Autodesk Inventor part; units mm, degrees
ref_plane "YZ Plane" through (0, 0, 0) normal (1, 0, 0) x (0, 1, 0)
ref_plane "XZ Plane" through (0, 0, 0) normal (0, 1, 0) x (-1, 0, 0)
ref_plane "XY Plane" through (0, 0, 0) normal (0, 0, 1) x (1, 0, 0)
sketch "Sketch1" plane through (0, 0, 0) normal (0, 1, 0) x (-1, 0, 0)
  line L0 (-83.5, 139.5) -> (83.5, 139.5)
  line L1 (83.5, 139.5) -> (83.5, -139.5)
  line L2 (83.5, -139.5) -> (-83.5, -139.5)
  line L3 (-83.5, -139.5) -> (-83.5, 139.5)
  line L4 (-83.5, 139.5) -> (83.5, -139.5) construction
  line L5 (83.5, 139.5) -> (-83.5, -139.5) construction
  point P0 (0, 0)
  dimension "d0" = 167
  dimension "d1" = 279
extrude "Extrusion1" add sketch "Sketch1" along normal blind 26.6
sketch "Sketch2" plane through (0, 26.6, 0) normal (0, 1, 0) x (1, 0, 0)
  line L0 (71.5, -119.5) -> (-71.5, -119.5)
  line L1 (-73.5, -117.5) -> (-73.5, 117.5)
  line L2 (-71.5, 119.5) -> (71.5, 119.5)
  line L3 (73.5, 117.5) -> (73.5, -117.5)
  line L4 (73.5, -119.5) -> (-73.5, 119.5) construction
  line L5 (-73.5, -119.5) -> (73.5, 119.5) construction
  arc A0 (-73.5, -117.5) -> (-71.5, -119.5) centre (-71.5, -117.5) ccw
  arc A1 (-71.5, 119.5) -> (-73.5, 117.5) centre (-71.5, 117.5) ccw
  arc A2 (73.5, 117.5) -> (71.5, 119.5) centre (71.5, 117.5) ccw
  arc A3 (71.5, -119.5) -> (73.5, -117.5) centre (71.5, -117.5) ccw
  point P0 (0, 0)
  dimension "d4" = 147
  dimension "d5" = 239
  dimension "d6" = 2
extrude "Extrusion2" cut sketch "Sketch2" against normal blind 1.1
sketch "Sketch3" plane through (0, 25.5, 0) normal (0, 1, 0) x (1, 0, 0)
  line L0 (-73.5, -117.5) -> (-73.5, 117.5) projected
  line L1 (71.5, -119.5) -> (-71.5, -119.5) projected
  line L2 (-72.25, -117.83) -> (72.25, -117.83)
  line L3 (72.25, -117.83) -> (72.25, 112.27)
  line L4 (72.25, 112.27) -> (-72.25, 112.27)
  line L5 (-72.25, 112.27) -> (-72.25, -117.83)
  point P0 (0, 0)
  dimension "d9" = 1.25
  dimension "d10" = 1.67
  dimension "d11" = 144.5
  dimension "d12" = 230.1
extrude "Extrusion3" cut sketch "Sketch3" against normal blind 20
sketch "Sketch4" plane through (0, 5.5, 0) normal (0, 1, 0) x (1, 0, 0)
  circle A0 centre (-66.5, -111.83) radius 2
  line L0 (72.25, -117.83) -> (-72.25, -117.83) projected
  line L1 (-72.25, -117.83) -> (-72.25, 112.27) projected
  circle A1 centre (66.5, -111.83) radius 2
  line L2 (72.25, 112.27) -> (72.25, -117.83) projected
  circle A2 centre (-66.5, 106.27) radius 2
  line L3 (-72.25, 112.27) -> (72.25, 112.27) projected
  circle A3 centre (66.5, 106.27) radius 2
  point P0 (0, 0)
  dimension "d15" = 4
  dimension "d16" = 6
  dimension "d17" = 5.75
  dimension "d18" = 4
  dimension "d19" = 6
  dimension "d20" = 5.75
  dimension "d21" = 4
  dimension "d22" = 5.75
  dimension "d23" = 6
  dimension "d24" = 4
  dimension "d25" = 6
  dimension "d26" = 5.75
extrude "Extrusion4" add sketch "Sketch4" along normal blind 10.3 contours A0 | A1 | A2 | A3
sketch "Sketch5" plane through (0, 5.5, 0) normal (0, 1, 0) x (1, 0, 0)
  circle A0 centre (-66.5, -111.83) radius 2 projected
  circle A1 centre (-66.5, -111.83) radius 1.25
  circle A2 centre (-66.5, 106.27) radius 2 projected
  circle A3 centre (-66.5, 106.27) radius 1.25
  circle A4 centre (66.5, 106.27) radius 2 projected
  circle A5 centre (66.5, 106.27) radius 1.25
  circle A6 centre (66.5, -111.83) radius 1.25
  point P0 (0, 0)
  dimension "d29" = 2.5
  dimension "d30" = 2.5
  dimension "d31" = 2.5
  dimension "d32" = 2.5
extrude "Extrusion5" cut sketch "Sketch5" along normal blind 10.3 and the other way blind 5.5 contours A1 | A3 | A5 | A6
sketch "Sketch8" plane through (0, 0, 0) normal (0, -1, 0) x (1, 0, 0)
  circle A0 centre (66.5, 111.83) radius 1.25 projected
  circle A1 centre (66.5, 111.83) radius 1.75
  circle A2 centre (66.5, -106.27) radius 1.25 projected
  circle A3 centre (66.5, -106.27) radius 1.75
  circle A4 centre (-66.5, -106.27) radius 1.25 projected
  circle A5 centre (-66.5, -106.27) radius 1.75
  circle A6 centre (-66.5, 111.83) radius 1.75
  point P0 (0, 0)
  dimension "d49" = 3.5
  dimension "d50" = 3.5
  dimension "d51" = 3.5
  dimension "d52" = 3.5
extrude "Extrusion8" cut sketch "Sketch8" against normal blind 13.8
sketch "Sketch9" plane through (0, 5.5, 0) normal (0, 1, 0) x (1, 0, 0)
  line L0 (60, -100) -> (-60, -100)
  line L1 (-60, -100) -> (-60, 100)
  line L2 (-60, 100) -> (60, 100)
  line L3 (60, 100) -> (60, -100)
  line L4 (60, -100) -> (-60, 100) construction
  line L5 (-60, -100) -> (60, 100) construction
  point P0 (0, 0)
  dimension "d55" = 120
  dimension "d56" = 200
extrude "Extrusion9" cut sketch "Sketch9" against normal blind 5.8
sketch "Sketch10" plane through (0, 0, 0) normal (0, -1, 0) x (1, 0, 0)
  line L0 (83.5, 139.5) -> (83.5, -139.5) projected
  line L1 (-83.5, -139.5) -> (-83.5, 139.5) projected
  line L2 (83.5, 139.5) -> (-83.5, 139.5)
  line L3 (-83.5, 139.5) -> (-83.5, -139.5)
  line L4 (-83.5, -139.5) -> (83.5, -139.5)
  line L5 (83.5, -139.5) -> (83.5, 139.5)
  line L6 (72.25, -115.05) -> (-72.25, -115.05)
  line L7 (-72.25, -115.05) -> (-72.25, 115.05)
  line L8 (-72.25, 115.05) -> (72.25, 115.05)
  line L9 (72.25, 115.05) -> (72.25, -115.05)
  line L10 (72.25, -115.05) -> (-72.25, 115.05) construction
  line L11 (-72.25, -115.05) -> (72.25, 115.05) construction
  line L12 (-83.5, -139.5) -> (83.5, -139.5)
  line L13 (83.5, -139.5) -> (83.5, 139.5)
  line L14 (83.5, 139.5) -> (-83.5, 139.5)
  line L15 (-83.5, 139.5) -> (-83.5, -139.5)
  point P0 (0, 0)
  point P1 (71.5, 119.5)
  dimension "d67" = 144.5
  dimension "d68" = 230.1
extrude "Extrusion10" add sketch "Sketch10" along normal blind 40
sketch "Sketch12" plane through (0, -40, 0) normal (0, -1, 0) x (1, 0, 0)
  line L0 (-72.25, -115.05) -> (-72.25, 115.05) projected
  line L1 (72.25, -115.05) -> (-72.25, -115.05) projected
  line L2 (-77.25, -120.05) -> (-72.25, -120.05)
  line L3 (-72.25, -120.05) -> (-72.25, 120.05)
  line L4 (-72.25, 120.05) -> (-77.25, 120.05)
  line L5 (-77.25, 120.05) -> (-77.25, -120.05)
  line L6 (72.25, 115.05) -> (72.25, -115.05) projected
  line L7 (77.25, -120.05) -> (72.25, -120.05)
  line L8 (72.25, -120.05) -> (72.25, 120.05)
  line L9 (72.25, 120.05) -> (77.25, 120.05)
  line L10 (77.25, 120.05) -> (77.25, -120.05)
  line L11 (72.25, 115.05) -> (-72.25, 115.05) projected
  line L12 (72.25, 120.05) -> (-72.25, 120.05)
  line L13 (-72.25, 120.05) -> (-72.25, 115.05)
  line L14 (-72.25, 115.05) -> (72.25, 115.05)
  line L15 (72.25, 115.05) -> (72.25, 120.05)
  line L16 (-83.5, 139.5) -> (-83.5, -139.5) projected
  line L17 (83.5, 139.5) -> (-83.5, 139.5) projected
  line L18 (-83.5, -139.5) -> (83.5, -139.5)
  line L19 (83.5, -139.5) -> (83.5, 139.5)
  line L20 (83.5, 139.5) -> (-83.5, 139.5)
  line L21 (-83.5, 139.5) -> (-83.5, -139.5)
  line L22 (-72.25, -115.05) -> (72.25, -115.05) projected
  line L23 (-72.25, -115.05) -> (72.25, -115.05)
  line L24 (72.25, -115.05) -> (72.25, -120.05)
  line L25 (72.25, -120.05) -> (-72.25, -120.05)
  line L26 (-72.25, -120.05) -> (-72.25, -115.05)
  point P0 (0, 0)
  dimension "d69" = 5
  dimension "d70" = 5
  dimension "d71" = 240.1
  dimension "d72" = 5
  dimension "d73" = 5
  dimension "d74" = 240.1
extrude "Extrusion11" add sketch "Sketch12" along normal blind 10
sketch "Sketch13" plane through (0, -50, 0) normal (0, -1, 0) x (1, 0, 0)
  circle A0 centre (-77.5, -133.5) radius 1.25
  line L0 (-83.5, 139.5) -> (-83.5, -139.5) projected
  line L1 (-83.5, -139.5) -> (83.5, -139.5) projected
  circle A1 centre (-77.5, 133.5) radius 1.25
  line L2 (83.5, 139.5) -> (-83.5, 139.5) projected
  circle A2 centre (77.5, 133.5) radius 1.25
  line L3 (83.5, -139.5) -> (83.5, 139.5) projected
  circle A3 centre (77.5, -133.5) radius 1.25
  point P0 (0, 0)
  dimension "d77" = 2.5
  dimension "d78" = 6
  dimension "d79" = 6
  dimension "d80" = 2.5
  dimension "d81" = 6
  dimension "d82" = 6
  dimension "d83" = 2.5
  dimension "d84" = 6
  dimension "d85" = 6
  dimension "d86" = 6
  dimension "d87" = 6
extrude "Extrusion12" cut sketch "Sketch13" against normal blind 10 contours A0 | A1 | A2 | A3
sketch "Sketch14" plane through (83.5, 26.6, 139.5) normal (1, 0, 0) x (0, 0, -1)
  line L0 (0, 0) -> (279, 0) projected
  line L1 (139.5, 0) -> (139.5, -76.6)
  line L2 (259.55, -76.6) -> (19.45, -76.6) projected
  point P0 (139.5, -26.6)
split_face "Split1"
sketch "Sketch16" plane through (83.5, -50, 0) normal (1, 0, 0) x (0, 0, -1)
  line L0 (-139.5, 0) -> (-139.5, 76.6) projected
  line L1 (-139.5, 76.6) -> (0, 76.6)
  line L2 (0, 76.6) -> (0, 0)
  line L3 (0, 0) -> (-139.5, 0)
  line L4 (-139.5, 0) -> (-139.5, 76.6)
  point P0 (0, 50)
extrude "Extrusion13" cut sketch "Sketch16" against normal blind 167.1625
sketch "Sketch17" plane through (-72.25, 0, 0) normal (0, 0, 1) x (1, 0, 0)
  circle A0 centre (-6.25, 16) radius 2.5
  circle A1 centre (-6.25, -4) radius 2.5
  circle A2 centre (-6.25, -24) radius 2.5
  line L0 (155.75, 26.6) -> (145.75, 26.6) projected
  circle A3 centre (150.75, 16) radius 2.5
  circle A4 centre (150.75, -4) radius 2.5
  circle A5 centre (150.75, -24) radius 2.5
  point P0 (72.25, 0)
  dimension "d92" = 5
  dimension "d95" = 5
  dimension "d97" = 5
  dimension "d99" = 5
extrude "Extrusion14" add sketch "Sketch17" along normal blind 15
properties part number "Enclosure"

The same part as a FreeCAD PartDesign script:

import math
import FreeCAD as App
import Part
import Sketcher

doc = App.newDocument("Part")
body = doc.addObject("PartDesign::Body", "Body")

# Sketch on XZ plane
sketch1 = body.newObject("Sketcher::SketchObject", "Sketch")
sketch1.AttachmentSupport = (doc.getObject("XZ_Plane"), [""])
sketch1.MapMode = "FlatFace"
sketch1.addGeometry([
    Part.LineSegment(App.Vector(-84, 140, 0), App.Vector(84, 140, 0)),
    Part.LineSegment(App.Vector(84, 140, 0), App.Vector(84, -140, 0)),
    Part.LineSegment(App.Vector(84, -140, 0), App.Vector(-84, -140, 0)),
    Part.LineSegment(App.Vector(-84, -140, 0), App.Vector(-84, 140, 0)),
], False)
sketch1.addConstraint([
    Sketcher.Constraint("Coincident", 0, 2, 1, 1),
    Sketcher.Constraint("Coincident", 1, 2, 2, 1),
    Sketcher.Constraint("Coincident", 2, 2, 3, 1),
    Sketcher.Constraint("Coincident", 3, 2, 0, 1),
    Sketcher.Constraint("Horizontal", 0),
    Sketcher.Constraint("Vertical", 1),
    Sketcher.Constraint("Horizontal", 2),
    Sketcher.Constraint("Vertical", 3),
    Sketcher.Constraint("Symmetric", 0, 2, 2, 2, -1, 1),
    Sketcher.Constraint("DistanceX", 0, 1, 0, 2, 167.0),
    Sketcher.Constraint("DistanceY", 1, 2, 1, 1, 279.0),
])
pad1 = body.newObject("PartDesign::Pad", "Pad")
pad1.Profile = sketch1
pad1.Length = 26.6
pad1.Reversed = True

# Sketch on XZ plane
sketch2 = body.newObject("Sketcher::SketchObject", "Sketch001")
sketch2.AttachmentSupport = (doc.getObject("XZ_Plane"), [""])
sketch2.MapMode = "FlatFace"
sketch2.AttachmentOffset = App.Placement(App.Vector(0, 0, -26.6), App.Rotation())
sketch2.addGeometry([
    Part.LineSegment(App.Vector(-71.5, 119.5, 0), App.Vector(71.5, 119.5, 0)),  # 0
    Part.ArcOfCircle(Part.Circle(App.Vector(71.5, 117.5, 0), App.Vector(0, 0, 1), 2), math.radians(0), math.radians(90)),  # 1
    Part.LineSegment(App.Vector(73.5, 117.5, 0), App.Vector(73.5, -117.5, 0)),  # 2
    Part.ArcOfCircle(Part.Circle(App.Vector(71.5, -117.5, 0), App.Vector(0, 0, 1), 2), math.radians(-90), math.radians(0)),  # 3
    Part.LineSegment(App.Vector(71.5, -119.5, 0), App.Vector(-71.5, -119.5, 0)),  # 4
    Part.ArcOfCircle(Part.Circle(App.Vector(-71.5, -117.5, 0), App.Vector(0, 0, 1), 2), math.radians(180), math.radians(270)),  # 5
    Part.LineSegment(App.Vector(-73.5, -117.5, 0), App.Vector(-73.5, 117.5, 0)),  # 6
    Part.ArcOfCircle(Part.Circle(App.Vector(-71.5, 117.5, 0), App.Vector(0, 0, 1), 2), math.radians(90), math.radians(180)),  # 7
], False)
sketch2.addConstraint([
    Sketcher.Constraint("Tangent", 0, 2, 1, 2),
    Sketcher.Constraint("Tangent", 1, 1, 2, 1),
    Sketcher.Constraint("Tangent", 2, 2, 3, 2),
    Sketcher.Constraint("Tangent", 3, 1, 4, 1),
    Sketcher.Constraint("Tangent", 4, 2, 5, 2),
    Sketcher.Constraint("Tangent", 5, 1, 6, 1),
    Sketcher.Constraint("Tangent", 6, 2, 7, 2),
    Sketcher.Constraint("Tangent", 7, 1, 0, 1),
    Sketcher.Constraint("Horizontal", 0),
    Sketcher.Constraint("Vertical", 2),
    Sketcher.Constraint("Horizontal", 4),
    Sketcher.Constraint("Vertical", 6),
    Sketcher.Constraint("Equal", 1, 3),
    Sketcher.Constraint("Equal", 3, 5),
    Sketcher.Constraint("Equal", 5, 7),
    Sketcher.Constraint("Symmetric", 1, 3, 5, 3, -1, 1),
    Sketcher.Constraint("Radius", 1, 2.0),
    Sketcher.Constraint("DistanceX", 5, 1, 2, 2, 147.0),
    Sketcher.Constraint("DistanceY", 2, 2, 2, 1, 235.0),
])
pocket1 = body.newObject("PartDesign::Pocket", "Pocket")
pocket1.Profile = sketch2
pocket1.Length = 1.1
pocket1.Reversed = True

# Sketch on XZ plane
sketch3 = body.newObject("Sketcher::SketchObject", "Sketch002")
sketch3.AttachmentSupport = (doc.getObject("XZ_Plane"), [""])
sketch3.MapMode = "FlatFace"
sketch3.AttachmentOffset = App.Placement(App.Vector(0, 0, -25.5), App.Rotation())
sketch3.addGeometry([
    Part.LineSegment(App.Vector(-72, -112, 0), App.Vector(-72, 118, 0)),
    Part.LineSegment(App.Vector(-72, 118, 0), App.Vector(72, 118, 0)),
    Part.LineSegment(App.Vector(72, 118, 0), App.Vector(72, -112, 0)),
    Part.LineSegment(App.Vector(72, -112, 0), App.Vector(-72, -112, 0)),
], False)
sketch3.addConstraint([
    Sketcher.Constraint("Coincident", 0, 2, 1, 1),
    Sketcher.Constraint("Coincident", 1, 2, 2, 1),
    Sketcher.Constraint("Coincident", 2, 2, 3, 1),
    Sketcher.Constraint("Coincident", 3, 2, 0, 1),
    Sketcher.Constraint("Vertical", 0),
    Sketcher.Constraint("Horizontal", 1),
    Sketcher.Constraint("Vertical", 2),
    Sketcher.Constraint("Horizontal", 3),
    Sketcher.Constraint("DistanceX", 1, 1, 1, 2, 144.5),
    Sketcher.Constraint("DistanceY", 0, 1, 0, 2, 230.1),
    Sketcher.Constraint("DistanceX", 0, 2, -1, 1, 72.25),
    Sketcher.Constraint("DistanceY", -1, 1, 0, 2, 117.83),
])
pocket2 = body.newObject("PartDesign::Pocket", "Pocket001")
pocket2.Profile = sketch3
pocket2.Length = 20
pocket2.Reversed = True

# Sketch on XZ plane
sketch4 = body.newObject("Sketcher::SketchObject", "Sketch003")
sketch4.AttachmentSupport = (doc.getObject("XZ_Plane"), [""])
sketch4.MapMode = "FlatFace"
sketch4.AttachmentOffset = App.Placement(App.Vector(0, 0, -5.5), App.Rotation())
sketch4.addGeometry([
    Part.Circle(App.Vector(-66.5, 111.8, 0), App.Vector(0, 0, 1), 2),
    Part.Circle(App.Vector(66.5, 111.8, 0), App.Vector(0, 0, 1), 2),
    Part.Circle(App.Vector(-66.5, -106.3, 0), App.Vector(0, 0, 1), 2),
    Part.Circle(App.Vector(66.5, -106.3, 0), App.Vector(0, 0, 1), 2),
], False)
sketch4.addConstraint([
    Sketcher.Constraint("Equal", 0, 1),
    Sketcher.Constraint("Equal", 1, 2),
    Sketcher.Constraint("Equal", 2, 3),
    Sketcher.Constraint("Symmetric", 0, 3, 1, 3, -2),
    Sketcher.Constraint("Symmetric", 2, 3, 3, 3, -2),
    Sketcher.Constraint("Vertical", 0, 3, 2, 3),
    Sketcher.Constraint("Diameter", 0, 4.0),
    Sketcher.Constraint("DistanceX", 0, 3, 1, 3, 133.0),
    Sketcher.Constraint("DistanceY", 2, 3, 0, 3, 218.1),
    Sketcher.Constraint("DistanceY", -1, 1, 0, 3, 111.83),
])
pad2 = body.newObject("PartDesign::Pad", "Pad001")
pad2.Profile = sketch4
pad2.Length = 10.3
pad2.Reversed = True

# Sketch on XZ plane
sketch5 = body.newObject("Sketcher::SketchObject", "Sketch004")
sketch5.AttachmentSupport = (doc.getObject("XZ_Plane"), [""])
sketch5.MapMode = "FlatFace"
sketch5.AttachmentOffset = App.Placement(App.Vector(0, 0, -5.5), App.Rotation())
sketch5.addGeometry([
    Part.Circle(App.Vector(-66.5, 111.8, 0), App.Vector(0, 0, 1), 1.2),
    Part.Circle(App.Vector(-66.5, -106.3, 0), App.Vector(0, 0, 1), 1.2),
    Part.Circle(App.Vector(66.5, -106.3, 0), App.Vector(0, 0, 1), 1.2),
    Part.Circle(App.Vector(66.5, 111.8, 0), App.Vector(0, 0, 1), 1.2),
], False)
sketch5.addConstraint([
    Sketcher.Constraint("Equal", 0, 1),
    Sketcher.Constraint("Equal", 1, 2),
    Sketcher.Constraint("Equal", 2, 3),
    Sketcher.Constraint("Symmetric", 1, 3, 2, 3, -2),
    Sketcher.Constraint("Symmetric", 0, 3, 3, 3, -2),
    Sketcher.Constraint("Vertical", 0, 3, 1, 3),
    Sketcher.Constraint("Diameter", 0, 2.5),
    Sketcher.Constraint("DistanceX", 1, 3, 2, 3, 133.0),
    Sketcher.Constraint("DistanceY", 1, 3, 0, 3, 218.1),
    Sketcher.Constraint("DistanceY", -1, 1, 0, 3, 111.83),
])
pocket3 = body.newObject("PartDesign::Pocket", "Pocket002")
pocket3.Profile = sketch5
pocket3.Type = "ThroughAll"
pocket3.Midplane = True

# Sketch on XZ plane
sketch6 = body.newObject("Sketcher::SketchObject", "Sketch005")
sketch6.AttachmentSupport = (doc.getObject("XZ_Plane"), [""])
sketch6.MapMode = "FlatFace"
sketch6.addGeometry([
    Part.Circle(App.Vector(66.5, 111.8, 0), App.Vector(0, 0, 1), 1.8),  # 0
    Part.Circle(App.Vector(66.5, 111.8, 0), App.Vector(0, 0, 1), 1.2),  # 1
    Part.Circle(App.Vector(66.5, -106.3, 0), App.Vector(0, 0, 1), 1.8),  # 2
    Part.Circle(App.Vector(66.5, -106.3, 0), App.Vector(0, 0, 1), 1.2),  # 3
    Part.Circle(App.Vector(-66.5, -106.3, 0), App.Vector(0, 0, 1), 1.8),  # 4
    Part.Circle(App.Vector(-66.5, -106.3, 0), App.Vector(0, 0, 1), 1.2),  # 5
    Part.Circle(App.Vector(-66.5, 111.8, 0), App.Vector(0, 0, 1), 1.8),  # 6
], False)
sketch6.addConstraint([
    Sketcher.Constraint("Coincident", 1, 3, 0, 3),
    Sketcher.Constraint("Coincident", 3, 3, 2, 3),
    Sketcher.Constraint("Coincident", 5, 3, 4, 3),
    Sketcher.Constraint("Equal", 0, 2),
    Sketcher.Constraint("Equal", 1, 3),
    Sketcher.Constraint("Equal", 2, 4),
    Sketcher.Constraint("Equal", 3, 5),
    Sketcher.Constraint("Equal", 4, 6),
    Sketcher.Constraint("Symmetric", 2, 3, 4, 3, -2),
    Sketcher.Constraint("Symmetric", 0, 3, 6, 3, -2),
    Sketcher.Constraint("Vertical", 1, 3, 2, 3),
    Sketcher.Constraint("Diameter", 0, 3.5),
    Sketcher.Constraint("Diameter", 1, 2.5),
    Sketcher.Constraint("DistanceX", 4, 3, 2, 3, 133.0),
    Sketcher.Constraint("DistanceY", 2, 3, 0, 3, 218.1),
    Sketcher.Constraint("DistanceY", -1, 1, 0, 3, 111.83),
])
pocket4 = body.newObject("PartDesign::Pocket", "Pocket003")
pocket4.Profile = sketch6
pocket4.Length = 13.8

# Sketch on XZ plane
sketch7 = body.newObject("Sketcher::SketchObject", "Sketch006")
sketch7.AttachmentSupport = (doc.getObject("XZ_Plane"), [""])
sketch7.MapMode = "FlatFace"
sketch7.AttachmentOffset = App.Placement(App.Vector(0, 0, -5.5), App.Rotation())
sketch7.addGeometry([
    Part.LineSegment(App.Vector(-60, 100, 0), App.Vector(60, 100, 0)),
    Part.LineSegment(App.Vector(60, 100, 0), App.Vector(60, -100, 0)),
    Part.LineSegment(App.Vector(60, -100, 0), App.Vector(-60, -100, 0)),
    Part.LineSegment(App.Vector(-60, -100, 0), App.Vector(-60, 100, 0)),
], False)
sketch7.addConstraint([
    Sketcher.Constraint("Coincident", 0, 2, 1, 1),
    Sketcher.Constraint("Coincident", 1, 2, 2, 1),
    Sketcher.Constraint("Coincident", 2, 2, 3, 1),
    Sketcher.Constraint("Coincident", 3, 2, 0, 1),
    Sketcher.Constraint("Horizontal", 0),
    Sketcher.Constraint("Vertical", 1),
    Sketcher.Constraint("Horizontal", 2),
    Sketcher.Constraint("Vertical", 3),
    Sketcher.Constraint("Symmetric", 0, 2, 2, 2, -1, 1),
    Sketcher.Constraint("DistanceX", 0, 1, 0, 2, 120.0),
    Sketcher.Constraint("DistanceY", 1, 2, 1, 1, 200.0),
])
pocket5 = body.newObject("PartDesign::Pocket", "Pocket004")
pocket5.Profile = sketch7
pocket5.Length = 5.8
pocket5.Reversed = True

# Sketch on XZ plane
sketch8 = body.newObject("Sketcher::SketchObject", "Sketch007")
sketch8.AttachmentSupport = (doc.getObject("XZ_Plane"), [""])
sketch8.MapMode = "FlatFace"
sketch8.addGeometry([
    Part.LineSegment(App.Vector(84, -140, 0), App.Vector(84, 140, 0)),  # 0
    Part.LineSegment(App.Vector(84, 140, 0), App.Vector(-84, 140, 0)),  # 1
    Part.LineSegment(App.Vector(-84, 140, 0), App.Vector(-84, -140, 0)),  # 2
    Part.LineSegment(App.Vector(-84, -140, 0), App.Vector(84, -140, 0)),  # 3
    Part.LineSegment(App.Vector(72, 115, 0), App.Vector(72, -115, 0)),  # 4
    Part.LineSegment(App.Vector(72, -115, 0), App.Vector(-72, -115, 0)),  # 5
    Part.LineSegment(App.Vector(-72, -115, 0), App.Vector(-72, 115, 0)),  # 6
    Part.LineSegment(App.Vector(-72, 115, 0), App.Vector(72, 115, 0)),  # 7
], False)
sketch8.addConstraint([
    Sketcher.Constraint("Coincident", 0, 2, 1, 1),
    Sketcher.Constraint("Coincident", 1, 2, 2, 1),
    Sketcher.Constraint("Coincident", 2, 2, 3, 1),
    Sketcher.Constraint("Coincident", 3, 2, 0, 1),
    Sketcher.Constraint("Coincident", 4, 2, 5, 1),
    Sketcher.Constraint("Coincident", 5, 2, 6, 1),
    Sketcher.Constraint("Coincident", 6, 2, 7, 1),
    Sketcher.Constraint("Coincident", 7, 2, 4, 1),
    Sketcher.Constraint("Vertical", 0),
    Sketcher.Constraint("Horizontal", 1),
    Sketcher.Constraint("Vertical", 2),
    Sketcher.Constraint("Horizontal", 3),
    Sketcher.Constraint("Vertical", 4),
    Sketcher.Constraint("Horizontal", 5),
    Sketcher.Constraint("Vertical", 6),
    Sketcher.Constraint("Horizontal", 7),
    Sketcher.Constraint("Symmetric", 0, 2, 2, 2, -1, 1),
    Sketcher.Constraint("Symmetric", 4, 2, 6, 2, -1, 1),
    Sketcher.Constraint("DistanceX", 5, 2, 5, 1, 144.5),
    Sketcher.Constraint("DistanceY", 4, 2, 4, 1, 230.1),
    Sketcher.Constraint("DistanceX", 1, 2, 1, 1, 167.0),
    Sketcher.Constraint("DistanceY", 0, 1, 0, 2, 279.0),
])
pad3 = body.newObject("PartDesign::Pad", "Pad002")
pad3.Profile = sketch8
pad3.Length = 40

# Sketch on XZ plane
sketch9 = body.newObject("Sketcher::SketchObject", "Sketch008")
sketch9.AttachmentSupport = (doc.getObject("XZ_Plane"), [""])
sketch9.MapMode = "FlatFace"
sketch9.AttachmentOffset = App.Placement(App.Vector(0, 0, 40), App.Rotation())
sketch9.addGeometry([
    Part.LineSegment(App.Vector(84, 140, 0), App.Vector(-84, 140, 0)),  # 0
    Part.LineSegment(App.Vector(-84, 140, 0), App.Vector(-84, -140, 0)),  # 1
    Part.LineSegment(App.Vector(-84, -140, 0), App.Vector(84, -140, 0)),  # 2
    Part.LineSegment(App.Vector(84, -140, 0), App.Vector(84, 140, 0)),  # 3
    Part.LineSegment(App.Vector(77, -120, 0), App.Vector(-77, -120, 0)),  # 4
    Part.LineSegment(App.Vector(-77, -120, 0), App.Vector(-77, 120, 0)),  # 5
    Part.LineSegment(App.Vector(-77, 120, 0), App.Vector(77, 120, 0)),  # 6
    Part.LineSegment(App.Vector(77, 120, 0), App.Vector(77, -120, 0)),  # 7
], False)
sketch9.addConstraint([
    Sketcher.Constraint("Coincident", 0, 2, 1, 1),
    Sketcher.Constraint("Coincident", 1, 2, 2, 1),
    Sketcher.Constraint("Coincident", 2, 2, 3, 1),
    Sketcher.Constraint("Coincident", 3, 2, 0, 1),
    Sketcher.Constraint("Coincident", 4, 2, 5, 1),
    Sketcher.Constraint("Coincident", 5, 2, 6, 1),
    Sketcher.Constraint("Coincident", 6, 2, 7, 1),
    Sketcher.Constraint("Coincident", 7, 2, 4, 1),
    Sketcher.Constraint("Horizontal", 0),
    Sketcher.Constraint("Vertical", 1),
    Sketcher.Constraint("Horizontal", 2),
    Sketcher.Constraint("Vertical", 3),
    Sketcher.Constraint("Horizontal", 4),
    Sketcher.Constraint("Vertical", 5),
    Sketcher.Constraint("Horizontal", 6),
    Sketcher.Constraint("Vertical", 7),
    Sketcher.Constraint("Symmetric", 0, 2, 2, 2, -1, 1),
    Sketcher.Constraint("Symmetric", 4, 2, 6, 2, -1, 1),
    Sketcher.Constraint("DistanceY", 5, 1, 5, 2, 240.1),
    Sketcher.Constraint("DistanceX", 0, 2, 0, 1, 167.0),
    Sketcher.Constraint("DistanceY", 1, 2, 1, 1, 279.0),
    Sketcher.Constraint("DistanceX", 4, 2, 4, 1, 154.5),
])
pad4 = body.newObject("PartDesign::Pad", "Pad003")
pad4.Profile = sketch9
pad4.Length = 10

# Sketch on XZ plane
sketch10 = body.newObject("Sketcher::SketchObject", "Sketch009")
sketch10.AttachmentSupport = (doc.getObject("XZ_Plane"), [""])
sketch10.MapMode = "FlatFace"
sketch10.AttachmentOffset = App.Placement(App.Vector(0, 0, 50), App.Rotation())
sketch10.addGeometry([
    Part.Circle(App.Vector(-77.5, -133.5, 0), App.Vector(0, 0, 1), 1.2),
    Part.Circle(App.Vector(-77.5, 133.5, 0), App.Vector(0, 0, 1), 1.2),
    Part.Circle(App.Vector(77.5, 133.5, 0), App.Vector(0, 0, 1), 1.2),
    Part.Circle(App.Vector(77.5, -133.5, 0), App.Vector(0, 0, 1), 1.2),
], False)
sketch10.addConstraint([
    Sketcher.Constraint("Equal", 0, 1),
    Sketcher.Constraint("Equal", 1, 2),
    Sketcher.Constraint("Equal", 2, 3),
    Sketcher.Constraint("Symmetric", 0, 3, 2, 3, -1, 1),
    Sketcher.Constraint("Symmetric", 1, 3, 3, 3, -1, 1),
    Sketcher.Constraint("Symmetric", 1, 3, 2, 3, -2),
    Sketcher.Constraint("Diameter", 0, 2.5),
    Sketcher.Constraint("DistanceY", 0, 3, 1, 3, 267.0),
    Sketcher.Constraint("DistanceX", 1, 3, 2, 3, 155.0),
])
pocket6 = body.newObject("PartDesign::Pocket", "Pocket005")
pocket6.Profile = sketch10
pocket6.Length = 10

# Sketch on YZ plane
sketch11 = body.newObject("Sketcher::SketchObject", "Sketch010")
sketch11.AttachmentSupport = (doc.getObject("YZ_Plane"), [""])
sketch11.MapMode = "FlatFace"
sketch11.AttachmentOffset = App.Placement(App.Vector(0, 0, 83.5), App.Rotation())
sketch11.addGeometry([
    Part.LineSegment(App.Vector(27, 140, 0), App.Vector(-50, 140, 0)),
    Part.LineSegment(App.Vector(-50, 140, 0), App.Vector(-50, 0, 0)),
    Part.LineSegment(App.Vector(-50, 0, 0), App.Vector(27, 0, 0)),
    Part.LineSegment(App.Vector(27, 0, 0), App.Vector(27, 140, 0)),
], False)
sketch11.addConstraint([
    Sketcher.Constraint("Coincident", 0, 2, 1, 1),
    Sketcher.Constraint("Coincident", 1, 2, 2, 1),
    Sketcher.Constraint("Coincident", 2, 2, 3, 1),
    Sketcher.Constraint("Coincident", 3, 2, 0, 1),
    Sketcher.Constraint("Horizontal", 0),
    Sketcher.Constraint("Vertical", 1),
    Sketcher.Constraint("Horizontal", 2),
    Sketcher.Constraint("Vertical", 3),
    Sketcher.Constraint("PointOnObject", 1, 2, -1),
    Sketcher.Constraint("DistanceX", 0, 2, 0, 1, 76.6),
    Sketcher.Constraint("DistanceY", 1, 2, 1, 1, 139.5),
    Sketcher.Constraint("DistanceX", 0, 2, -1, 1, 50.0),
])
pocket7 = body.newObject("PartDesign::Pocket", "Pocket006")
pocket7.Profile = sketch11
pocket7.Length = 167.1625

# Sketch on XY plane
sketch12 = body.newObject("Sketcher::SketchObject", "Sketch011")
sketch12.AttachmentSupport = (doc.getObject("XY_Plane"), [""])
sketch12.MapMode = "FlatFace"
sketch12.addGeometry([
    Part.Circle(App.Vector(-78.5, 16, 0), App.Vector(0, 0, 1), 2.5),  # 0
    Part.Circle(App.Vector(-78.5, -4, 0), App.Vector(0, 0, 1), 2.5),  # 1
    Part.Circle(App.Vector(-78.5, -24, 0), App.Vector(0, 0, 1), 2.5),  # 2
    Part.Circle(App.Vector(78.5, 16, 0), App.Vector(0, 0, 1), 2.5),  # 3
    Part.Circle(App.Vector(78.5, -4, 0), App.Vector(0, 0, 1), 2.5),  # 4
    Part.Circle(App.Vector(78.5, -24, 0), App.Vector(0, 0, 1), 2.5),  # 5
], False)
sketch12.addConstraint([
    Sketcher.Constraint("Equal", 0, 1),
    Sketcher.Constraint("Equal", 1, 2),
    Sketcher.Constraint("Equal", 2, 3),
    Sketcher.Constraint("Equal", 3, 4),
    Sketcher.Constraint("Equal", 4, 5),
    Sketcher.Constraint("Symmetric", 0, 3, 3, 3, -2),
    Sketcher.Constraint("Symmetric", 1, 3, 4, 3, -2),
    Sketcher.Constraint("Symmetric", 2, 3, 5, 3, -2),
    Sketcher.Constraint("Vertical", 0, 3, 1, 3),
    Sketcher.Constraint("Vertical", 1, 3, 2, 3),
    Sketcher.Constraint("Diameter", 0, 5.0),
    Sketcher.Constraint("DistanceY", -1, 1, 0, 3, 16.0),
    Sketcher.Constraint("DistanceY", 1, 3, -1, 1, 4.0),
    Sketcher.Constraint("DistanceY", 2, 3, -1, 1, 24.0),
    Sketcher.Constraint("DistanceX", 0, 3, 3, 3, 157.0),
])
pad5 = body.newObject("PartDesign::Pad", "Pad004")
pad5.Profile = sketch12
pad5.Length = 15

doc.recompute()
